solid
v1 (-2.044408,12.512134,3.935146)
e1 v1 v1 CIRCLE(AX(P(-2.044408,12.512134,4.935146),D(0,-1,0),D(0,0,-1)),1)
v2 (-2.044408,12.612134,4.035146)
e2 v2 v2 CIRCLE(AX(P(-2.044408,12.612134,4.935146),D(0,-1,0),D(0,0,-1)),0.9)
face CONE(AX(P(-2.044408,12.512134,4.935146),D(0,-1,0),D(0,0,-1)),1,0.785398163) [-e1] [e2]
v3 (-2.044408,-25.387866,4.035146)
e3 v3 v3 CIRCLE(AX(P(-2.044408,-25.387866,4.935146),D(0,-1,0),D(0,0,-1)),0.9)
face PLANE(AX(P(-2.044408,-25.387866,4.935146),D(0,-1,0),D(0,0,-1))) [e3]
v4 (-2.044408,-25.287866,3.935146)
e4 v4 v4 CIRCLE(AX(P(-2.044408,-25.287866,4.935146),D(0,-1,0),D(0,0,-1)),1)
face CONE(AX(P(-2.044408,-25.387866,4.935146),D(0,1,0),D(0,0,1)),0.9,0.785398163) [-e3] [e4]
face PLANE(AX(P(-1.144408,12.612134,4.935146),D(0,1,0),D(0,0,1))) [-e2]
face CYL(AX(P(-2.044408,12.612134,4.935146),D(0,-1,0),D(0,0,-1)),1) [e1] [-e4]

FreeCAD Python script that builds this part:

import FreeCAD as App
import Part
import Sketcher
from FreeCAD import Vector
Q = App.Units.Quantity

doc = App.newDocument("Part")
body = doc.addObject("PartDesign::Body", "Body")

sketch1 = body.newObject("Sketcher::SketchObject", "Sketch")
sketch1.AttachmentSupport = (doc.getObject("XY_Plane"), [""])
sketch1.MapMode = "FlatFace"
sketch1.AttachmentOffset = App.Placement(Vector(0, 0, 4.935146), App.Rotation())
sketch1.addGeometry([
    Part.LineSegment(Vector(-1.144408, 12.612134, 0), Vector(-2.044408, 12.612134, 0)),
    Part.LineSegment(Vector(-2.044408, 12.612134, 0), Vector(-2.044408, -25.387866, 0)),
    Part.LineSegment(Vector(-2.044408, -25.387866, 0), Vector(-1.144408, -25.387866, 0)),
    Part.LineSegment(Vector(-1.144408, -25.387866, 0), Vector(-1.044408, -25.287866, 0)),
    Part.LineSegment(Vector(-1.044408, -25.287866, 0), Vector(-1.044408, 12.512134, 0)),
    Part.LineSegment(Vector(-1.044408, 12.512134, 0), Vector(-1.144408, 12.612134, 0)),
], False)
sketch1.addGeometry(Part.LineSegment(Vector(-2.044408, 12.612134, 0), Vector(-2.044408, -25.387866, 0)), True)
sketch1.addConstraint([
    Sketcher.Constraint("Coincident", 0, 2, 1, 1),
    Sketcher.Constraint("Coincident", 1, 2, 2, 1),
    Sketcher.Constraint("Coincident", 2, 2, 3, 1),
    Sketcher.Constraint("Coincident", 3, 2, 4, 1),
    Sketcher.Constraint("Coincident", 4, 2, 5, 1),
    Sketcher.Constraint("Coincident", 5, 2, 0, 1),
    Sketcher.Constraint("Horizontal", 0),
    Sketcher.Constraint("Vertical", 1),
    Sketcher.Constraint("Horizontal", 2),
    Sketcher.Constraint("Vertical", 4),
    Sketcher.Constraint("Vertical", 6),
    Sketcher.Constraint("Coincident", 6, 1, 0, 2),
    Sketcher.Constraint("Perpendicular", 3, 5),
    Sketcher.Constraint("Horizontal", 2, 2, 6, 2),
    Sketcher.Constraint("Vertical", 2, 2, 5, 2),
    Sketcher.Constraint("Equal", 3, 5),
    Sketcher.Constraint("DistanceY", 1, 2, 1, 1, Q("38 mm")),
    Sketcher.Constraint("DistanceX", 0, 2, 0, 1, Q("0.9 mm")),
    Sketcher.Constraint("DistanceY", 4, 1, 4, 2, Q("37.8 mm")),
    Sketcher.Constraint("DistanceX", 0, 2, -1, 1, Q("2.044408 mm")),
    Sketcher.Constraint("DistanceY", -1, 1, 0, 2, Q("12.612134 mm")),
])
revolution = body.newObject("PartDesign::Revolution", "Revolution")
revolution.Profile = sketch1
revolution.ReferenceAxis = (sketch1, ["Axis0"])
revolution.Angle = 360

doc.recompute()
